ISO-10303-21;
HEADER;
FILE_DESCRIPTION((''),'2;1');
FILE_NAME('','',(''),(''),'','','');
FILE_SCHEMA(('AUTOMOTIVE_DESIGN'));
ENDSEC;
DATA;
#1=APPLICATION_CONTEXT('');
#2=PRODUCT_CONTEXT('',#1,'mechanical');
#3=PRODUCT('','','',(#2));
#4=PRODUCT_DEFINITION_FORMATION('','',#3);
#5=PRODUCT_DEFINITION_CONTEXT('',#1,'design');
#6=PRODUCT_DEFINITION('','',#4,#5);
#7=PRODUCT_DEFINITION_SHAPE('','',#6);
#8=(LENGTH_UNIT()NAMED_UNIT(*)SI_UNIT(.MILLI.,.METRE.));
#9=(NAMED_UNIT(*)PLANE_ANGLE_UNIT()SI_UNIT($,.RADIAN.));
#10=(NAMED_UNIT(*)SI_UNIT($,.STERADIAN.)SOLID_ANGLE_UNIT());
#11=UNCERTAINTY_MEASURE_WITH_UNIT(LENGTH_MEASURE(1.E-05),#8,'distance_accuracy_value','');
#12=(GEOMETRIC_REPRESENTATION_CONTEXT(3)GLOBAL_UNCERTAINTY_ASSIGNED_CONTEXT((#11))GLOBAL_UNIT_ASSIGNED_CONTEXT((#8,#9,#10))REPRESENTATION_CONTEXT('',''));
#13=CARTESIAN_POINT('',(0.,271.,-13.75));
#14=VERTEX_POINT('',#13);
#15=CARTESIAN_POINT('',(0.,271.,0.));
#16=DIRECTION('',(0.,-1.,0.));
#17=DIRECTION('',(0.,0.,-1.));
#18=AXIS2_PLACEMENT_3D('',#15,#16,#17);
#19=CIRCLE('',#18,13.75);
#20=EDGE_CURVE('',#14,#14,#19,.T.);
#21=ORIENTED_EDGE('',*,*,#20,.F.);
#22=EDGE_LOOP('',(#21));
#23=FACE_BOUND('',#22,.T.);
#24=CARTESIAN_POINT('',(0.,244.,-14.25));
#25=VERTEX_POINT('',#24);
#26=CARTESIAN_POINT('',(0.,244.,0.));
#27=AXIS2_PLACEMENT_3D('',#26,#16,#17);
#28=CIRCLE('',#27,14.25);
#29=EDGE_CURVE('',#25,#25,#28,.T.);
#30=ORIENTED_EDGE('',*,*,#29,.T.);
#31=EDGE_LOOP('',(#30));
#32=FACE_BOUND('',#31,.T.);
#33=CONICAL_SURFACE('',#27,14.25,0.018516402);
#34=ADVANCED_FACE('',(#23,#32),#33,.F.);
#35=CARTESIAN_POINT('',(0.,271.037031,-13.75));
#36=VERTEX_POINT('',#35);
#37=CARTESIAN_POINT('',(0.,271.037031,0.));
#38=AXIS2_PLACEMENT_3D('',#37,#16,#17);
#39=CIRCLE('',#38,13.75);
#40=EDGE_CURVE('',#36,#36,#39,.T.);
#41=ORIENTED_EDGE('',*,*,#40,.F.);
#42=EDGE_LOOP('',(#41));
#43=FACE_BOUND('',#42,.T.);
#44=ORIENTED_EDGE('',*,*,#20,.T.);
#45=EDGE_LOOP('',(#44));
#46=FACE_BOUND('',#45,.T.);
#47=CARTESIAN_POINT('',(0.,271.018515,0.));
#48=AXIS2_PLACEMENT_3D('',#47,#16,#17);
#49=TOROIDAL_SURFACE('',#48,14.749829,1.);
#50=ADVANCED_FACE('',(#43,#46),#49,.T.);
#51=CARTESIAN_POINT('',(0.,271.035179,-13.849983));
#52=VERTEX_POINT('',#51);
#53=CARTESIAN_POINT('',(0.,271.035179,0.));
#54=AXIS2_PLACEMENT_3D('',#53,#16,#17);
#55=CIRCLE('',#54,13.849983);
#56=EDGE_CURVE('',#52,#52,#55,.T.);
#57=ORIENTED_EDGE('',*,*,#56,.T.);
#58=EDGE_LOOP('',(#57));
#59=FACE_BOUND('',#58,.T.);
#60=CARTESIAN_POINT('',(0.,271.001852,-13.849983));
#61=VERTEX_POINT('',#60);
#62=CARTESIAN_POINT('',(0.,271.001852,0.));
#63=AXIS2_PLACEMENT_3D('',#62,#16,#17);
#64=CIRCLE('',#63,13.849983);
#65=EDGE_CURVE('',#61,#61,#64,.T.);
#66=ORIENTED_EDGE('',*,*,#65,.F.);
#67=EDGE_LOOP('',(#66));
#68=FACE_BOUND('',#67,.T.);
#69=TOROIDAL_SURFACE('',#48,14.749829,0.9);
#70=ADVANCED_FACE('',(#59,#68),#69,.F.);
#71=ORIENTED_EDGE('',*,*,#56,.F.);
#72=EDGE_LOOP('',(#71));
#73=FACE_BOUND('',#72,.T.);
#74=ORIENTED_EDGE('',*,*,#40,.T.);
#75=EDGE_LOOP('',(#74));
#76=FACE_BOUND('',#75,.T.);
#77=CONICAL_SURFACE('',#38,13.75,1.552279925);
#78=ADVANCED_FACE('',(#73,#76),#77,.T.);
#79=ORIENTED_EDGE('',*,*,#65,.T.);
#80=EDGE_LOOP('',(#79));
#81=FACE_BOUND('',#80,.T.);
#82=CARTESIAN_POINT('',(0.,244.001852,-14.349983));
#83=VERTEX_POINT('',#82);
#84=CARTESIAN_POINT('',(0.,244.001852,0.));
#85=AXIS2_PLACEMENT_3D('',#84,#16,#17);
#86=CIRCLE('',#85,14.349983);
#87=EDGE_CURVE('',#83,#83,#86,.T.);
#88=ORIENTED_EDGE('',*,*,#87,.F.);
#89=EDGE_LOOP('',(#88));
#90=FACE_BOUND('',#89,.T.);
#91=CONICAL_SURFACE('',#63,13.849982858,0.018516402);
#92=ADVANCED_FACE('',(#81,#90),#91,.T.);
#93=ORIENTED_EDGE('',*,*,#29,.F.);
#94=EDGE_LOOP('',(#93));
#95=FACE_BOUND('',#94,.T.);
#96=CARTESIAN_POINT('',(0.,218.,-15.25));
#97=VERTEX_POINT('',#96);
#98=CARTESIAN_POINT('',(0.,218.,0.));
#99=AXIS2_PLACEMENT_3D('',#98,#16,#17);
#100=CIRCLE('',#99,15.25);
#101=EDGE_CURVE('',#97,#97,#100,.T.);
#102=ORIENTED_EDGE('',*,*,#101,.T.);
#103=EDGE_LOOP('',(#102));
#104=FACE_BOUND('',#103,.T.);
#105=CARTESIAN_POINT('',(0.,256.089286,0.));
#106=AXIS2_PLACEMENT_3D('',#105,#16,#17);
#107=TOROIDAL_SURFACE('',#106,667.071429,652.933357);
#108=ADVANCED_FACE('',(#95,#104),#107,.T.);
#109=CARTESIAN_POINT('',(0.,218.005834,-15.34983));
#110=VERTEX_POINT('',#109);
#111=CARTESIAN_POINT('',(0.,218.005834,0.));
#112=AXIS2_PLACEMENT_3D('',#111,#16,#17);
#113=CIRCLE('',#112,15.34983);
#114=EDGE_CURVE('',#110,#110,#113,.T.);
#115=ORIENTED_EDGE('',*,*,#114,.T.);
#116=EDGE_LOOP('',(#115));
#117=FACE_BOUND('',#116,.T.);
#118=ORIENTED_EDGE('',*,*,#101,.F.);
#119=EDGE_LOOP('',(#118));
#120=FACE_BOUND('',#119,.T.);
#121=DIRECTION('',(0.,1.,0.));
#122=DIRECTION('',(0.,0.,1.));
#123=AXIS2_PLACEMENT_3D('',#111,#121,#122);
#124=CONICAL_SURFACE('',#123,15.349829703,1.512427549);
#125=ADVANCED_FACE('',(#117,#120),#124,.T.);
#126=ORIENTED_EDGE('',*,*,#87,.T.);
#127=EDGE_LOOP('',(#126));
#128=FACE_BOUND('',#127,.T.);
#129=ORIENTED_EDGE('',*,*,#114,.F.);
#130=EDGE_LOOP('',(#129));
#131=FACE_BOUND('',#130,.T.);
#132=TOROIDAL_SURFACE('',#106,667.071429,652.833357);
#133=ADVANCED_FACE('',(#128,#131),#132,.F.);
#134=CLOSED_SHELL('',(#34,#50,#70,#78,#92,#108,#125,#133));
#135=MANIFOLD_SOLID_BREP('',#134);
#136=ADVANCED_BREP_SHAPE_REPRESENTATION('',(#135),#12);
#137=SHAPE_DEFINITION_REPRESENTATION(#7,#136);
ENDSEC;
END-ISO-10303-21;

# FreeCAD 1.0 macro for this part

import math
import FreeCAD as App
import Part
import Sketcher
from FreeCAD import Vector
Q = App.Units.Quantity

doc = App.newDocument("Part")
params = doc.addObject("Spreadsheet::Sheet", "Params")
for row, (alias, value) in enumerate([
    ("sketch1_radius", "0.999998 mm"),
    ("sketch1_length", "0.1 mm"),
    ("revolution_angle", "360 deg"),
], start=1):
    params.set(f"A{row}", alias)
    params.set(f"B{row}", "=" + value)
    params.setAlias(f"B{row}", alias)

body = doc.addObject("PartDesign::Body", "Body")

# Sketch on XY plane
sketch1 = body.newObject("Sketcher::SketchObject", "Sketch")
sketch1.AttachmentSupport = (doc.getObject("XY_Plane"), [""])
sketch1.MapMode = "FlatFace"
sketch1.addGeometry([
    Part.LineSegment(Vector(-13.849983, 271.001852, 0), Vector(-14.349983, 244.001852, 0)),  # 0
    Part.ArcOfCircle(Part.Circle(Vector(-667.071426, 256.089286, 0), Vector(0, 0, 1), 652.833355), math.radians(-3.344285), math.radians(-1.060912)),  # 1
    Part.LineSegment(Vector(-15.34983, 218.005834, 0), Vector(-15.25, 218, 0)),  # 2
    Part.ArcOfCircle(Part.Circle(Vector(-667.071431, 256.089286, 0), Vector(0, 0, 1), 652.933359), math.radians(-3.344285), math.radians(-1.060912)),  # 3
    Part.LineSegment(Vector(-14.25, 244, 0), Vector(-13.75, 271, 0)),  # 4
    Part.ArcOfCircle(Part.Circle(Vector(-14.749827, 271.018515, 0), Vector(0, 0, 1), 0.999998), math.radians(-1.060914), math.radians(1.060914)),  # 5
    Part.LineSegment(Vector(-13.75, 271.037031, 0), Vector(-13.849983, 271.035179, 0)),  # 6
    Part.ArcOfCircle(Part.Circle(Vector(-14.749825, 271.018515, 0), Vector(0, 0, 1), 0.899996), math.radians(-1.060916), math.radians(1.060916)),  # 7
], False)
sketch1.addConstraint([
    Sketcher.Constraint("Tangent", 0, 2, 1, 2),
    Sketcher.Constraint("Coincident", 1, 1, 2, 1),
    Sketcher.Constraint("Coincident", 2, 2, 3, 1),
    Sketcher.Constraint("Tangent", 3, 2, 4, 1),
    Sketcher.Constraint("Tangent", 4, 2, 5, 1),
    Sketcher.Constraint("Coincident", 5, 2, 6, 1),
    Sketcher.Constraint("Coincident", 6, 2, 7, 2),
    Sketcher.Constraint("Tangent", 7, 1, 0, 1),
    Sketcher.Constraint("Coincident", 3, 3, 1, 3),
    Sketcher.Constraint("Coincident", 7, 3, 5, 3),
    Sketcher.Constraint("Parallel", 0, 4),
    Sketcher.Constraint("Vertical", 4, 2, 5, 2),
    Sketcher.Constraint("Vertical", 6, 2, 7, 1),
    Sketcher.Constraint("Radius", 5, 0.999998),
    Sketcher.Constraint("DistanceY", -1, 1, 2, 2, 218.0),
    Sketcher.Constraint("DistanceY", -1, 1, 4, 2, 271.0),
    Sketcher.Constraint("DistanceX", 2, 2, 3, 2, 1.0),
    Sketcher.Constraint("Distance", 2, 0.1),
    Sketcher.Constraint("DistanceX", 3, 2, 4, 2, 0.5),
    Sketcher.Constraint("DistanceX", 2, 2, -1, 1, 15.25),
    Sketcher.Constraint("Radius", 3, 652.933359),
    Sketcher.Constraint("Angle", 2, Q("-3.344285 deg")),
])
sketch1.setExpression("Constraints[13]", "Params.sketch1_radius")
sketch1.setExpression("Constraints[17]", "Params.sketch1_length")
revolution = body.newObject("PartDesign::Revolution", "Revolution")
revolution.Profile = sketch1
revolution.ReferenceAxis = (sketch1, ["V_Axis"])
revolution.setExpression("Angle", "Params.revolution_angle")

doc.recompute()
